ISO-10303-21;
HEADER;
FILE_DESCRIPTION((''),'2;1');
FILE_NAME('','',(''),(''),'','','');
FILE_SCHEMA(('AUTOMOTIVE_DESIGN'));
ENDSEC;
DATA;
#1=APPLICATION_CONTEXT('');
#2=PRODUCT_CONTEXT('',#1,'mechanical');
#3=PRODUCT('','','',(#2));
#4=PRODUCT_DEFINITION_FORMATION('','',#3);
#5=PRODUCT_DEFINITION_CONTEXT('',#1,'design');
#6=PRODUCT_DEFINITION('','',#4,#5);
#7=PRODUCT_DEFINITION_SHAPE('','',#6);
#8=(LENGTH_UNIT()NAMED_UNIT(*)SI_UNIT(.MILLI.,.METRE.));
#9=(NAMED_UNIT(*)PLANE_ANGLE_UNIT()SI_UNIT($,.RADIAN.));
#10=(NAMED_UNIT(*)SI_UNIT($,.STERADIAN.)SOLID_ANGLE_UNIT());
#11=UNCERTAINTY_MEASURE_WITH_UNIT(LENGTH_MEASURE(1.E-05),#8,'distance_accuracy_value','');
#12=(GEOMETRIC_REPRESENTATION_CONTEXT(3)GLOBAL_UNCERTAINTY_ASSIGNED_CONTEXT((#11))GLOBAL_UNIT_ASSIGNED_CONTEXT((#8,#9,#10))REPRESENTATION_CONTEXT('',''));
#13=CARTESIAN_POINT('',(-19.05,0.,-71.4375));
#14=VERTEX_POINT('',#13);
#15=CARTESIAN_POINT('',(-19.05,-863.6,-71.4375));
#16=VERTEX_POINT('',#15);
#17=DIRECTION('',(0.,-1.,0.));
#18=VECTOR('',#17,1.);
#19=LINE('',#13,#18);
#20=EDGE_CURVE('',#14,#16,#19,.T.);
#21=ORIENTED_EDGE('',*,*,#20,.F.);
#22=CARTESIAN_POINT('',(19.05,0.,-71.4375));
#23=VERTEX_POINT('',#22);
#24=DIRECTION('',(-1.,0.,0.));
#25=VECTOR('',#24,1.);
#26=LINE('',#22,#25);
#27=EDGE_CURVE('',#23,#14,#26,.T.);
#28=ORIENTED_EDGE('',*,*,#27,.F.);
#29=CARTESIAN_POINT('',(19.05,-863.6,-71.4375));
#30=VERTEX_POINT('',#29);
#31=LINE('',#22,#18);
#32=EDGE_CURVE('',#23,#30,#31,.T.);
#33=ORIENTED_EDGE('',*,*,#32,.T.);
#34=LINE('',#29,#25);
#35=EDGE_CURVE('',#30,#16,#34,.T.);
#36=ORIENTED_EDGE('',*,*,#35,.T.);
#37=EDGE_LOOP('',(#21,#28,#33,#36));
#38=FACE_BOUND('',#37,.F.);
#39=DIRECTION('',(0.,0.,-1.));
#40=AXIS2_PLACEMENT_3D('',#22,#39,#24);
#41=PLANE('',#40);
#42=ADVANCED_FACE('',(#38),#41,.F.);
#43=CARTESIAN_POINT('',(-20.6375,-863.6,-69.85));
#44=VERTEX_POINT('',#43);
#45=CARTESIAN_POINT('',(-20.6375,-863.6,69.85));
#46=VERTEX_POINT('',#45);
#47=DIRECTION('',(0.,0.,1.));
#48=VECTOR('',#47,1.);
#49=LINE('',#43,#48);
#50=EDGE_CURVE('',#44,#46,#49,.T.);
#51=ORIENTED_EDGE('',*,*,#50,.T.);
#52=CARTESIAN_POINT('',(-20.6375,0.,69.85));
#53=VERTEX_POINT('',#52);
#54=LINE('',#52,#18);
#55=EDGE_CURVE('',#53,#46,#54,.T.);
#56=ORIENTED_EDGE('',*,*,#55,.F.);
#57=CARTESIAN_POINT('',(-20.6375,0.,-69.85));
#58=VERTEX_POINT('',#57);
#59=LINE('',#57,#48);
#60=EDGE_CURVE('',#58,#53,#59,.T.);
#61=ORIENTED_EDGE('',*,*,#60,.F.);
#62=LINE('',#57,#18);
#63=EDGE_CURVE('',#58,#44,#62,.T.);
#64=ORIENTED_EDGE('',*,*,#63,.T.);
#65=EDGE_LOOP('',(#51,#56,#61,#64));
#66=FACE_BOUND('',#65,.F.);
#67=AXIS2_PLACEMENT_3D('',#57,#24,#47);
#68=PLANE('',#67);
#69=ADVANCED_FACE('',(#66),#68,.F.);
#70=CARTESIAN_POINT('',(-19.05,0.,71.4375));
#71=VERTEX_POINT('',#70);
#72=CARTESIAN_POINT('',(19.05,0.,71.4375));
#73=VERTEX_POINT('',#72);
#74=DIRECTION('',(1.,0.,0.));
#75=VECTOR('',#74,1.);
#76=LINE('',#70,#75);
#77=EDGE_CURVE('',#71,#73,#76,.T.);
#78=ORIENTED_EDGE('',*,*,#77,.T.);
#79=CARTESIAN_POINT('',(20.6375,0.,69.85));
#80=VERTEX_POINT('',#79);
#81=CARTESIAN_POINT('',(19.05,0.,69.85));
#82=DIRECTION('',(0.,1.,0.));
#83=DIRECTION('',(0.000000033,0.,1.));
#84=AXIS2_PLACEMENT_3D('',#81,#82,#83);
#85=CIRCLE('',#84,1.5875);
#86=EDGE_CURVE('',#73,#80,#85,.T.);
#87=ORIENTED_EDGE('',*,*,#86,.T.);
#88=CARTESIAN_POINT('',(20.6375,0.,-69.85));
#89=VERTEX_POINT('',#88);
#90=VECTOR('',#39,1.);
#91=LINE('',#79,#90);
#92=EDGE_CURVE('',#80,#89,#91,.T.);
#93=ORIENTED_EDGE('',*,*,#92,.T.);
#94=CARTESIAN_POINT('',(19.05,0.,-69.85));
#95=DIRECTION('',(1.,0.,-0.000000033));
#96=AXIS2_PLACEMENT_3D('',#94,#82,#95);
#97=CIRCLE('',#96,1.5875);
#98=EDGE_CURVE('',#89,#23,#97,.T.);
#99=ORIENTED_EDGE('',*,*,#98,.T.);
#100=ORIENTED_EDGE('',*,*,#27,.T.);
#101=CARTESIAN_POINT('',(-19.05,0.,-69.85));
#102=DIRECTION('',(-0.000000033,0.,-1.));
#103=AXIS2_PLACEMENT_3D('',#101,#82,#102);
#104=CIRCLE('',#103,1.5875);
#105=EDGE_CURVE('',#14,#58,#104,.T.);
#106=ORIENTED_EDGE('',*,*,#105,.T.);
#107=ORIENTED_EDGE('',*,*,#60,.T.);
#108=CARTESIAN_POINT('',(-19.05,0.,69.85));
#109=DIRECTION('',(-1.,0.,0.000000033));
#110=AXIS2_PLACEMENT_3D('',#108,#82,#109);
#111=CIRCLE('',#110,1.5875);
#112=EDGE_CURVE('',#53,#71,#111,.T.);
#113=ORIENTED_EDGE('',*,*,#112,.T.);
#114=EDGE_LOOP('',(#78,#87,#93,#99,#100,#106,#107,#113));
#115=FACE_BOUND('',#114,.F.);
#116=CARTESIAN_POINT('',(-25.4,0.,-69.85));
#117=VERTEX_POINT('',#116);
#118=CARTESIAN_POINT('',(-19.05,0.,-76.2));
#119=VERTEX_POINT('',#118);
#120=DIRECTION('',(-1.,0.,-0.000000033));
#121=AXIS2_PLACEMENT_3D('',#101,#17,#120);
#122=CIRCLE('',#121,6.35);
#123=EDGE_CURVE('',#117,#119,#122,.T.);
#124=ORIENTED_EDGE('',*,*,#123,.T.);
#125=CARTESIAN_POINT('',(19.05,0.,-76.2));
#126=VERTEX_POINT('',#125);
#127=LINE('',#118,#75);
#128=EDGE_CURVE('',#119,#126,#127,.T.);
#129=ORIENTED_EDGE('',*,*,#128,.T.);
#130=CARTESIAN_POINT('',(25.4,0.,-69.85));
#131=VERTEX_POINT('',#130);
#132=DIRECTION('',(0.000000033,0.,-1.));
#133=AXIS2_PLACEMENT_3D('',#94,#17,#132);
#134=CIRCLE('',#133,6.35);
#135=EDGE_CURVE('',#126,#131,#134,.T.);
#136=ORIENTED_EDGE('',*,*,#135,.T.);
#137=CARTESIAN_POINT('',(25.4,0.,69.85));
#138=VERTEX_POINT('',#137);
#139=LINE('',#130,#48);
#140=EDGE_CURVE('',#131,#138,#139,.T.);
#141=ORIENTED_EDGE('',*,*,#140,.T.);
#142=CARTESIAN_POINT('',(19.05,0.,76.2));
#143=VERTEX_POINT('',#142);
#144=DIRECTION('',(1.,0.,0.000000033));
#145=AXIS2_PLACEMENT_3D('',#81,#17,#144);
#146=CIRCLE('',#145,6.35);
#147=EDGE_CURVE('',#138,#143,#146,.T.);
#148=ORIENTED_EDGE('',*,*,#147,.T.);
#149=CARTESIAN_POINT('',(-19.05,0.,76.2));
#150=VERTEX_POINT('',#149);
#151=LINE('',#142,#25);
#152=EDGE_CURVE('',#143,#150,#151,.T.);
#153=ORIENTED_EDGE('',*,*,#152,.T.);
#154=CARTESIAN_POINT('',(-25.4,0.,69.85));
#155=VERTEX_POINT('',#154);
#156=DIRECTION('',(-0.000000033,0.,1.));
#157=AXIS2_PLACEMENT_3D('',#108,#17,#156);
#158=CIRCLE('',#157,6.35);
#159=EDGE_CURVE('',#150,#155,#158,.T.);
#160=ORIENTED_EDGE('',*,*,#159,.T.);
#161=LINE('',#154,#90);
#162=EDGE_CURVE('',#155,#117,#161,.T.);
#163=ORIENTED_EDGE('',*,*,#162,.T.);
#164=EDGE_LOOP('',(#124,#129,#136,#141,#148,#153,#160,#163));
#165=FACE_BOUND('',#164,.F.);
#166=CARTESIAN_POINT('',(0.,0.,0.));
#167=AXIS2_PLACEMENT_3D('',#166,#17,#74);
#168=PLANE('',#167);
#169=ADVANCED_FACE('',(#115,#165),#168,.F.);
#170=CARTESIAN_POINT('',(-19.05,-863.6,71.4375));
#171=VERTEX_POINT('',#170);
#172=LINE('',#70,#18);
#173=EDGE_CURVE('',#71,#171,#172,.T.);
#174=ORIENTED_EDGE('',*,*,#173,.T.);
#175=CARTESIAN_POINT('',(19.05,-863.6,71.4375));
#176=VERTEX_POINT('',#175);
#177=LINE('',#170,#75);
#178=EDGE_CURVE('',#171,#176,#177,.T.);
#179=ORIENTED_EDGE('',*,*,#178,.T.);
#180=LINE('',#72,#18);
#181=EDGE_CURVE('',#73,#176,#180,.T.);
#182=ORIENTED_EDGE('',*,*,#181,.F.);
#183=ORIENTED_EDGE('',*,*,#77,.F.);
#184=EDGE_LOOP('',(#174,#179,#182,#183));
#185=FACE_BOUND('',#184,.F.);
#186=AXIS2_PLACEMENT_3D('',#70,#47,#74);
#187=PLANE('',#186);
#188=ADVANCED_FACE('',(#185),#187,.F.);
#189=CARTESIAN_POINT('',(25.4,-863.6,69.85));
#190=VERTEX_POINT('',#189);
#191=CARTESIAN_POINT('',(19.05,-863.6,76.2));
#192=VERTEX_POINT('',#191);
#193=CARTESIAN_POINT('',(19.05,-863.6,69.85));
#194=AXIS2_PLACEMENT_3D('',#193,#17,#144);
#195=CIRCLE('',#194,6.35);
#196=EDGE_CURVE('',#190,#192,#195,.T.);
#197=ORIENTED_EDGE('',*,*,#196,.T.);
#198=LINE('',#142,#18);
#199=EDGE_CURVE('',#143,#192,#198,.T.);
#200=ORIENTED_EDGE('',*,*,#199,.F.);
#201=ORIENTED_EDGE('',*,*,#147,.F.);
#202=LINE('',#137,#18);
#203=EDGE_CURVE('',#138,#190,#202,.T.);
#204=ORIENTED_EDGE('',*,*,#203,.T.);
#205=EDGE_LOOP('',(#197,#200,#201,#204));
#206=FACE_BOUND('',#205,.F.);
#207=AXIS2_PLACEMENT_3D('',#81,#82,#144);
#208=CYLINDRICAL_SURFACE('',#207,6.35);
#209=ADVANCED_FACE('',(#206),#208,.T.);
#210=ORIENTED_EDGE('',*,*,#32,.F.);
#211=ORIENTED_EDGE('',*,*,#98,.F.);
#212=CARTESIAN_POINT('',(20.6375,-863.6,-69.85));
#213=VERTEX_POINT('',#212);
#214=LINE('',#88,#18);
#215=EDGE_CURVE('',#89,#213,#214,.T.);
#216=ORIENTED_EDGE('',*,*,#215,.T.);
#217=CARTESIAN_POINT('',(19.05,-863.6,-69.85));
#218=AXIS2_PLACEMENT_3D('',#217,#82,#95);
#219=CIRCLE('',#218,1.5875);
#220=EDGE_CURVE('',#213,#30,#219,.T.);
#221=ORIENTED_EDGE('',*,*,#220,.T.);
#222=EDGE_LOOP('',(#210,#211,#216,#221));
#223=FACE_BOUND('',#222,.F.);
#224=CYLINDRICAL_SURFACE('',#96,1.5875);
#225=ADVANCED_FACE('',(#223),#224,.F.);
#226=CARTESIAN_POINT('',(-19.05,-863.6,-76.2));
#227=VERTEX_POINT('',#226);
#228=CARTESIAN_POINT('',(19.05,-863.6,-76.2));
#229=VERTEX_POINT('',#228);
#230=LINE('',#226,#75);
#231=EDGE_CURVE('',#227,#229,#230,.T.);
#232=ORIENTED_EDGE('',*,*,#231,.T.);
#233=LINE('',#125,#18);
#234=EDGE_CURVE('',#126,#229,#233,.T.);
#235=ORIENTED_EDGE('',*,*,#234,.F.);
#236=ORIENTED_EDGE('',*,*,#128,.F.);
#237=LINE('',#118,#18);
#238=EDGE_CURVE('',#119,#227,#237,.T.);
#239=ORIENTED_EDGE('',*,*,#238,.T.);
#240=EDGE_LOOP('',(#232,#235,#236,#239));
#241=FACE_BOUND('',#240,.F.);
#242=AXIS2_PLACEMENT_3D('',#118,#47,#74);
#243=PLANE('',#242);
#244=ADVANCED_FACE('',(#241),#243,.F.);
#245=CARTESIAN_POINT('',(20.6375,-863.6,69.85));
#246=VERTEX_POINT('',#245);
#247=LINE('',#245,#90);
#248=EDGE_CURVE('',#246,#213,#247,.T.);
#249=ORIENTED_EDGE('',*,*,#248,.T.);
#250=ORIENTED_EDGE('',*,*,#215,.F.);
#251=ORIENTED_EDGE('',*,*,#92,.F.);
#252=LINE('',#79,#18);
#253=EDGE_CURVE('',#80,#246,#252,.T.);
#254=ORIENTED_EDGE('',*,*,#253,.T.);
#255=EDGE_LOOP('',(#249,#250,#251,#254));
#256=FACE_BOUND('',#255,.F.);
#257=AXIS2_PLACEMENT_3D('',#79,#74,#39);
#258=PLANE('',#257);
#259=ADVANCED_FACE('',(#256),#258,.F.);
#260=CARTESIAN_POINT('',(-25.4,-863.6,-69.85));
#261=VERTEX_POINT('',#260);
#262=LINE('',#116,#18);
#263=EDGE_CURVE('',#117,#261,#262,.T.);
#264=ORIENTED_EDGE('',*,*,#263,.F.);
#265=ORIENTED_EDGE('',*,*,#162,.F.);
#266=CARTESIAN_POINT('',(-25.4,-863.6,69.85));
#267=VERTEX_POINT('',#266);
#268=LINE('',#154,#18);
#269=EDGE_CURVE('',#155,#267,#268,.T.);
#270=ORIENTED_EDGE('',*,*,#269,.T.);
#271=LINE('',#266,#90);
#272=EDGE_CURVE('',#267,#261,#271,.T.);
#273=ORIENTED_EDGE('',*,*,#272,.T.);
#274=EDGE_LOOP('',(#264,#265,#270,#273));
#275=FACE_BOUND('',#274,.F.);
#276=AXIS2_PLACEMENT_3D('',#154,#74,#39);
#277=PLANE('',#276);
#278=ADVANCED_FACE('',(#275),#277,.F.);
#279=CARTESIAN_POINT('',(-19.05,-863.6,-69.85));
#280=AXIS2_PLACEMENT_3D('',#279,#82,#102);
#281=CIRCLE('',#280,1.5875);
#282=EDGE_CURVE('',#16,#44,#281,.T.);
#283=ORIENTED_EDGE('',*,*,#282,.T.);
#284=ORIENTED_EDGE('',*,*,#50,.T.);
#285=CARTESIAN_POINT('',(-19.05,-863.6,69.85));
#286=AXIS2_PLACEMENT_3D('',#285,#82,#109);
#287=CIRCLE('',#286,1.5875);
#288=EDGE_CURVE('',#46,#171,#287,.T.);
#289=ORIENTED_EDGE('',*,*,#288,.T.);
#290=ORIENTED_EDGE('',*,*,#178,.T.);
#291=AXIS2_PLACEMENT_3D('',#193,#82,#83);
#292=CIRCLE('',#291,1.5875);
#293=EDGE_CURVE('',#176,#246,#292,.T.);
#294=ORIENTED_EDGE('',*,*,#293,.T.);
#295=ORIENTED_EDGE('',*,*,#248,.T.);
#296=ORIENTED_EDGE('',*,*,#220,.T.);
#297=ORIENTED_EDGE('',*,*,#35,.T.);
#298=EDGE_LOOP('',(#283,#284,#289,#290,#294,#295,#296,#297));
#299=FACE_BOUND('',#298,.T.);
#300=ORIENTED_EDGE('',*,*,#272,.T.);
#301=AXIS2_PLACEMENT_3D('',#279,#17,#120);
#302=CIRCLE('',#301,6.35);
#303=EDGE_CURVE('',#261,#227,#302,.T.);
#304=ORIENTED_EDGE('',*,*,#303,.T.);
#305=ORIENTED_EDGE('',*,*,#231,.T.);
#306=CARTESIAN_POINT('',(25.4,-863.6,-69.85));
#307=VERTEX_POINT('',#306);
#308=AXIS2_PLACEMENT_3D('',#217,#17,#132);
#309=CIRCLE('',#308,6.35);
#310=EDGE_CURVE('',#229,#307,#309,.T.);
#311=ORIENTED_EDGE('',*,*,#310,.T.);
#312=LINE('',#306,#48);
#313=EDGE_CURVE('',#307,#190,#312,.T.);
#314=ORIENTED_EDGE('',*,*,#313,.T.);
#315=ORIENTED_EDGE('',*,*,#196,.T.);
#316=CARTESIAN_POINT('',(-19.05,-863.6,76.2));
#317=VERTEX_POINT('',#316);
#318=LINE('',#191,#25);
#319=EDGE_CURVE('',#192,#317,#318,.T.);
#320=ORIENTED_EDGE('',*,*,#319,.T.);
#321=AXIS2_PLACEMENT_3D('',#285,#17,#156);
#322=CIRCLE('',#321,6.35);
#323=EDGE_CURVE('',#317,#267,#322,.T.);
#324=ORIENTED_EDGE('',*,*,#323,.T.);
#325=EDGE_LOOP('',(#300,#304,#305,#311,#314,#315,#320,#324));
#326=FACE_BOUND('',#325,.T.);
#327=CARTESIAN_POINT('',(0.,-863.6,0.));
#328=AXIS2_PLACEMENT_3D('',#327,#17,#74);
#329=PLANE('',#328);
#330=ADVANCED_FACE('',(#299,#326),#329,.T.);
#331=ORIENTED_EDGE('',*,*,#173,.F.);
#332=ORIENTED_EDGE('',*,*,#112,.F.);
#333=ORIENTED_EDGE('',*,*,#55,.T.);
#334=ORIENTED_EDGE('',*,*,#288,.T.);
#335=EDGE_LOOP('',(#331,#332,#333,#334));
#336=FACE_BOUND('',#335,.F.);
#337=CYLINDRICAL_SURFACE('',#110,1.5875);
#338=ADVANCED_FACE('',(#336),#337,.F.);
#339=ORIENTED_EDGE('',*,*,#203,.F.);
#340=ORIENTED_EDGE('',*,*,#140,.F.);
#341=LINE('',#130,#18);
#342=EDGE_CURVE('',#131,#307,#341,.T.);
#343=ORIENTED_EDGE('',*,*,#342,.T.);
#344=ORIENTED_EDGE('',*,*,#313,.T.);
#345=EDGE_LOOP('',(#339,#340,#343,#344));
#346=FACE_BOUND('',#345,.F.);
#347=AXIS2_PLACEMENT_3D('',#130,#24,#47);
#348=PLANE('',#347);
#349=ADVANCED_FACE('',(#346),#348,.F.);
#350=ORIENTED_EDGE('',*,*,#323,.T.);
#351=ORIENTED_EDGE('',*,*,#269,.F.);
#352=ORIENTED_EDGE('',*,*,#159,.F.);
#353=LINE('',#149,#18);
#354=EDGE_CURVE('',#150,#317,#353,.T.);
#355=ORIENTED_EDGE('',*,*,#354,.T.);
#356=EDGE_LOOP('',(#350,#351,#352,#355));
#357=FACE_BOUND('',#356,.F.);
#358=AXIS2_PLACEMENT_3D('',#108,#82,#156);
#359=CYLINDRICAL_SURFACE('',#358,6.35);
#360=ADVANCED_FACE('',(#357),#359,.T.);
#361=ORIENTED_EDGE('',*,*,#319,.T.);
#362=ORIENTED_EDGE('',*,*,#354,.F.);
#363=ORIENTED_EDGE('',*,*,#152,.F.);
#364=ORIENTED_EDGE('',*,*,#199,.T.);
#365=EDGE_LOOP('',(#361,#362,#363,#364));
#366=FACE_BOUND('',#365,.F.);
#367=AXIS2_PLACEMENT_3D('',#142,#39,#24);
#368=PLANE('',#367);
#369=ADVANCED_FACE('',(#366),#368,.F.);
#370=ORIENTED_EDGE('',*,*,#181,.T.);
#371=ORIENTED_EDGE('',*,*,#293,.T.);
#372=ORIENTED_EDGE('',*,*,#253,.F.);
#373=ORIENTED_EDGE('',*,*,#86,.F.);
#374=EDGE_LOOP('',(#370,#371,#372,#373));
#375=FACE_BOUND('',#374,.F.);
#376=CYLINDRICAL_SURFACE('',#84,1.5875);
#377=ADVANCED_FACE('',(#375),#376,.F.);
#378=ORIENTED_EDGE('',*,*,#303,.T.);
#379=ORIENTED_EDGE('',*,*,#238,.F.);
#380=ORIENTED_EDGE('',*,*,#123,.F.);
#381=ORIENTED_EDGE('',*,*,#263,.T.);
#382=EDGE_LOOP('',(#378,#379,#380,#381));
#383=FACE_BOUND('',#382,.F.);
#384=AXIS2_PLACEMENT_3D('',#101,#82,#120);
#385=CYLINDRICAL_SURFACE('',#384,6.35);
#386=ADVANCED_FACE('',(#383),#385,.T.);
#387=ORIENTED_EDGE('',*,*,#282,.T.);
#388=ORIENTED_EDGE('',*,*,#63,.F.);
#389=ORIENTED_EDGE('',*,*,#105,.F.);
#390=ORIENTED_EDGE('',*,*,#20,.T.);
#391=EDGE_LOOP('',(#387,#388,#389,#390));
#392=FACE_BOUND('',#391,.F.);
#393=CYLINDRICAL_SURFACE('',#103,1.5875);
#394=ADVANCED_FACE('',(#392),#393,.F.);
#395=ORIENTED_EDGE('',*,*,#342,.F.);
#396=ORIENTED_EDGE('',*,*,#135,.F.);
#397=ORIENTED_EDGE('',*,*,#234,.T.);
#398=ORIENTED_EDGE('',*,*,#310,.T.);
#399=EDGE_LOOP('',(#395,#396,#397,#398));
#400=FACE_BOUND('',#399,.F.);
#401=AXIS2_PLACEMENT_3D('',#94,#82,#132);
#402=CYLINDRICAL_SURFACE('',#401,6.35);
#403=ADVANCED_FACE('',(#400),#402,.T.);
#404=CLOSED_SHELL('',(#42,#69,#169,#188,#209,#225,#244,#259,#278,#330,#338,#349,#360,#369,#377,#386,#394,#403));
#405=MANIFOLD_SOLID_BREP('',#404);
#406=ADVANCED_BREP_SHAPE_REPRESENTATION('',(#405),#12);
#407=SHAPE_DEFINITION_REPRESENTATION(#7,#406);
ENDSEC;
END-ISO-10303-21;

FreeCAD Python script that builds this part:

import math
import FreeCAD as App
import Part
import Sketcher
Q = App.Units.Quantity

doc = App.newDocument("Part")
body = doc.addObject("PartDesign::Body", "Body")

# Sketch on XZ plane
sketch1 = body.newObject("Sketcher::SketchObject", "Sketch")
sketch1.AttachmentSupport = (doc.getObject("XZ_Plane"), [""])
sketch1.MapMode = "FlatFace"
sketch1.addGeometry([
    Part.ArcOfCircle(Part.Circle(App.Vector(19, 69.8, 0), App.Vector(0, 0, 1), 6.4), math.radians(0), math.radians(90)),  # 0
    Part.LineSegment(App.Vector(19.1, 76.2, 0), App.Vector(-19.1, 76.2, 0)),  # 1
    Part.ArcOfCircle(Part.Circle(App.Vector(-19, 69.8, 0), App.Vector(0, 0, 1), 6.4), math.radians(90), math.radians(180)),  # 2
    Part.LineSegment(App.Vector(-25.4, 69.8, 0), App.Vector(-25.4, -69.8, 0)),  # 3
    Part.ArcOfCircle(Part.Circle(App.Vector(-19, -69.8, 0), App.Vector(0, 0, 1), 6.4), math.radians(-180), math.radians(-90)),  # 4
    Part.LineSegment(App.Vector(-19.1, -76.2, 0), App.Vector(19.1, -76.2, 0)),  # 5
    Part.ArcOfCircle(Part.Circle(App.Vector(19, -69.8, 0), App.Vector(0, 0, 1), 6.4), math.radians(-90), math.radians(0)),  # 6
    Part.LineSegment(App.Vector(25.4, -69.8, 0), App.Vector(25.4, 69.8, 0)),  # 7
    Part.ArcOfCircle(Part.Circle(App.Vector(-19, -69.8, 0), App.Vector(0, 0, 1), 1.6), math.radians(-180), math.radians(-90)),  # 8
    Part.LineSegment(App.Vector(-20.6, -69.8, 0), App.Vector(-20.6, 69.8, 0)),  # 9
    Part.ArcOfCircle(Part.Circle(App.Vector(-19, 69.8, 0), App.Vector(0, 0, 1), 1.6), math.radians(90), math.radians(180)),  # 10
    Part.LineSegment(App.Vector(-19.1, 71.4, 0), App.Vector(19.1, 71.4, 0)),  # 11
    Part.ArcOfCircle(Part.Circle(App.Vector(19, 69.8, 0), App.Vector(0, 0, 1), 1.6), math.radians(0), math.radians(90)),  # 12
    Part.LineSegment(App.Vector(20.6, 69.8, 0), App.Vector(20.6, -69.8, 0)),  # 13
    Part.ArcOfCircle(Part.Circle(App.Vector(19, -69.8, 0), App.Vector(0, 0, 1), 1.6), math.radians(-90), math.radians(0)),  # 14
    Part.LineSegment(App.Vector(19.1, -71.4, 0), App.Vector(-19.1, -71.4, 0)),  # 15
], False)
sketch1.addConstraint([
    Sketcher.Constraint("Tangent", 0, 2, 1, 1),
    Sketcher.Constraint("Tangent", 1, 2, 2, 1),
    Sketcher.Constraint("Tangent", 2, 2, 3, 1),
    Sketcher.Constraint("Tangent", 3, 2, 4, 1),
    Sketcher.Constraint("Tangent", 4, 2, 5, 1),
    Sketcher.Constraint("Tangent", 5, 2, 6, 1),
    Sketcher.Constraint("Tangent", 6, 2, 7, 1),
    Sketcher.Constraint("Tangent", 7, 2, 0, 1),
    Sketcher.Constraint("Tangent", 8, 1, 9, 1),
    Sketcher.Constraint("Tangent", 9, 2, 10, 2),
    Sketcher.Constraint("Tangent", 10, 1, 11, 1),
    Sketcher.Constraint("Tangent", 11, 2, 12, 2),
    Sketcher.Constraint("Tangent", 12, 1, 13, 1),
    Sketcher.Constraint("Tangent", 13, 2, 14, 2),
    Sketcher.Constraint("Tangent", 14, 1, 15, 1),
    Sketcher.Constraint("Tangent", 15, 2, 8, 2),
    Sketcher.Constraint("Horizontal", 1),
    Sketcher.Constraint("Vertical", 3),
    Sketcher.Constraint("Horizontal", 5),
    Sketcher.Constraint("Vertical", 7),
    Sketcher.Constraint("Vertical", 9),
    Sketcher.Constraint("Horizontal", 11),
    Sketcher.Constraint("Vertical", 13),
    Sketcher.Constraint("Horizontal", 15),
    Sketcher.Constraint("Coincident", 8, 3, 4, 3),
    Sketcher.Constraint("Coincident", 10, 3, 2, 3),
    Sketcher.Constraint("Coincident", 12, 3, 0, 3),
    Sketcher.Constraint("Equal", 0, 2),
    Sketcher.Constraint("Equal", 2, 4),
    Sketcher.Constraint("Equal", 4, 6),
    Sketcher.Constraint("Equal", 12, 14),
    Sketcher.Constraint("Symmetric", 0, 3, 4, 3, -1, 1),
    Sketcher.Constraint("Radius", 0, Q("0.25 in")),
    Sketcher.Constraint("DistanceX", 1, 2, 1, 1, Q("1.5 in")),
    Sketcher.Constraint("DistanceY", 3, 2, 3, 1, Q("5.5 in")),
    Sketcher.Constraint("Radius", 8, Q("0.0625 in")),
])
pad1 = body.newObject("PartDesign::Pad", "Pad")
pad1.Profile = sketch1
pad1.Length = Q("34 in")

doc.recompute()
